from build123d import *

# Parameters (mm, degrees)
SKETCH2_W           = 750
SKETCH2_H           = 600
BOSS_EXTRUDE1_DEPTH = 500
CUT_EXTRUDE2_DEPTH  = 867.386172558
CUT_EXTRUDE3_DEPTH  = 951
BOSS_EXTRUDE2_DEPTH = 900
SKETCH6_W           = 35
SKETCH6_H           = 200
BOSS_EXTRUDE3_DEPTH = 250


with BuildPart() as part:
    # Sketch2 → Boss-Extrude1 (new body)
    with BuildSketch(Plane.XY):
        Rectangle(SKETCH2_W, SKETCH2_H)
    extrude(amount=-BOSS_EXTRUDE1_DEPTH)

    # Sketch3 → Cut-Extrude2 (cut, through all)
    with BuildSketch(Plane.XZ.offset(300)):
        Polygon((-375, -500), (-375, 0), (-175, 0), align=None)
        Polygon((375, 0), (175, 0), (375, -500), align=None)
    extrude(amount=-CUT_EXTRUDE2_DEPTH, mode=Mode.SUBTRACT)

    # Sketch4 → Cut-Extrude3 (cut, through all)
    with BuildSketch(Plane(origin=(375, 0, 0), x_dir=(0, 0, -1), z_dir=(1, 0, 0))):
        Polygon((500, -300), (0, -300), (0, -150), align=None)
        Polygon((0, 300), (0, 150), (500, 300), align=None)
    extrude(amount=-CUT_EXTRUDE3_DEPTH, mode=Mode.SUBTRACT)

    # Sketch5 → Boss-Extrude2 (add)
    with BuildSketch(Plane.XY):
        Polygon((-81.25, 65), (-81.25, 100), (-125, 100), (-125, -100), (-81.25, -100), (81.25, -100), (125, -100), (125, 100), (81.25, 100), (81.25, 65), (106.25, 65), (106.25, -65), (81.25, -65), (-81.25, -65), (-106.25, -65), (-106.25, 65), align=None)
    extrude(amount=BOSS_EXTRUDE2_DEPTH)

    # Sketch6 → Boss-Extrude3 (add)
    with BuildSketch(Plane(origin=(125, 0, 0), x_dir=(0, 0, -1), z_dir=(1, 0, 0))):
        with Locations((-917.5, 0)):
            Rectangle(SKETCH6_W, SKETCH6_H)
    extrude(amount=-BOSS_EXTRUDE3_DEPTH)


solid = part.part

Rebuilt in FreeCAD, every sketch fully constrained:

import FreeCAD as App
import Part
import Sketcher

V = App.Vector
Q = App.Units.Quantity

doc = App.newDocument("Part")
body = doc.addObject("PartDesign::Body", "Body")

# Sketch on XY plane
sketch1 = body.newObject("Sketcher::SketchObject", "Sketch")
sketch1.AttachmentSupport = (doc.getObject("XY_Plane"), [""])
sketch1.MapMode = "FlatFace"
sketch1.addGeometry(Part.LineSegment(V(-375, 300, 0), V(-375, -300, 0)), False)
sketch1.addGeometry(Part.LineSegment(V(-375, -300, 0), V(375, -300, 0)), False)
sketch1.addGeometry(Part.LineSegment(V(375, -300, 0), V(375, 300, 0)), False)
sketch1.addGeometry(Part.LineSegment(V(375, 300, 0), V(-375, 300, 0)), False)
sketch1.addConstraint(Sketcher.Constraint("Coincident", 0, 2, 1, 1))
sketch1.addConstraint(Sketcher.Constraint("Coincident", 1, 2, 2, 1))
sketch1.addConstraint(Sketcher.Constraint("Coincident", 2, 2, 3, 1))
sketch1.addConstraint(Sketcher.Constraint("Coincident", 3, 2, 0, 1))
sketch1.addConstraint(Sketcher.Constraint("Vertical", 0))
sketch1.addConstraint(Sketcher.Constraint("Horizontal", 1))
sketch1.addConstraint(Sketcher.Constraint("Vertical", 2))
sketch1.addConstraint(Sketcher.Constraint("Horizontal", 3))
sketch1.addConstraint(Sketcher.Constraint("Symmetric", 0, 2, 2, 2, -1, 1))
sketch1.addConstraint(Sketcher.Constraint("DistanceX", 1, 1, 1, 2, Q("750 mm")))
sketch1.addConstraint(Sketcher.Constraint("DistanceY", 0, 2, 0, 1, Q("600 mm")))
pad1 = body.newObject("PartDesign::Pad", "Pad")
pad1.Profile = sketch1
pad1.Length = 500
pad1.Reversed = True

# Sketch on XZ plane
sketch2 = body.newObject("Sketcher::SketchObject", "Sketch001")
sketch2.AttachmentSupport = (doc.getObject("XZ_Plane"), [""])
sketch2.MapMode = "FlatFace"
sketch2.AttachmentOffset = App.Placement(V(0, 0, 300), App.Rotation())
sketch2.addGeometry(Part.LineSegment(V(-375, 0, 0), V(-375, -500, 0)), False)
sketch2.addGeometry(Part.LineSegment(V(-375, -500, 0), V(-175, 0, 0)), False)
sketch2.addGeometry(Part.LineSegment(V(-175, 0, 0), V(-375, 0, 0)), False)
sketch2.addGeometry(Part.LineSegment(V(375, 0, 0), V(175, 0, 0)), False)
sketch2.addGeometry(Part.LineSegment(V(175, 0, 0), V(375, -500, 0)), False)
sketch2.addGeometry(Part.LineSegment(V(375, -500, 0), V(375, 0, 0)), False)
sketch2.addConstraint(Sketcher.Constraint("Coincident", 0, 2, 1, 1))
sketch2.addConstraint(Sketcher.Constraint("Coincident", 1, 2, 2, 1))
sketch2.addConstraint(Sketcher.Constraint("Coincident", 2, 2, 0, 1))
sketch2.addConstraint(Sketcher.Constraint("Coincident", 3, 2, 4, 1))
sketch2.addConstraint(Sketcher.Constraint("Coincident", 4, 2, 5, 1))
sketch2.addConstraint(Sketcher.Constraint("Coincident", 5, 2, 3, 1))
sketch2.addConstraint(Sketcher.Constraint("Vertical", 0))
sketch2.addConstraint(Sketcher.Constraint("Horizontal", 2))
sketch2.addConstraint(Sketcher.Constraint("Horizontal", 3))
sketch2.addConstraint(Sketcher.Constraint("Vertical", 5))
sketch2.addConstraint(Sketcher.Constraint("Symmetric", 1, 2, 3, 2, -1, 1))
sketch2.addConstraint(Sketcher.Constraint("Symmetric", 0, 2, 4, 2, -2))
sketch2.addConstraint(Sketcher.Constraint("PointOnObject", 1, 2, -1))
sketch2.addConstraint(Sketcher.Constraint("DistanceX", 2, 2, 2, 1, Q("200 mm")))
sketch2.addConstraint(Sketcher.Constraint("DistanceY", 0, 2, 0, 1, Q("500 mm")))
sketch2.addConstraint(Sketcher.Constraint("DistanceX", 0, 2, -1, 1, Q("375 mm")))
pocket1 = body.newObject("PartDesign::Pocket", "Pocket")
pocket1.Profile = sketch2
pocket1.Type = "ThroughAll"

# Sketch on YZ plane
sketch3 = body.newObject("Sketcher::SketchObject", "Sketch002")
sketch3.AttachmentSupport = (doc.getObject("YZ_Plane"), [""])
sketch3.MapMode = "FlatFace"
sketch3.AttachmentOffset = App.Placement(V(0, 0, 375), App.Rotation())
sketch3.addGeometry(Part.LineSegment(V(-300, 0, 0), V(-300, -500, 0)), False)
sketch3.addGeometry(Part.LineSegment(V(-300, -500, 0), V(-150, 0, 0)), False)
sketch3.addGeometry(Part.LineSegment(V(-150, 0, 0), V(-300, 0, 0)), False)
sketch3.addGeometry(Part.LineSegment(V(300, 0, 0), V(150, 0, 0)), False)
sketch3.addGeometry(Part.LineSegment(V(150, 0, 0), V(300, -500, 0)), False)
sketch3.addGeometry(Part.LineSegment(V(300, -500, 0), V(300, 0, 0)), False)
sketch3.addConstraint(Sketcher.Constraint("Coincident", 0, 2, 1, 1))
sketch3.addConstraint(Sketcher.Constraint("Coincident", 1, 2, 2, 1))
sketch3.addConstraint(Sketcher.Constraint("Coincident", 2, 2, 0, 1))
sketch3.addConstraint(Sketcher.Constraint("Coincident", 3, 2, 4, 1))
sketch3.addConstraint(Sketcher.Constraint("Coincident", 4, 2, 5, 1))
sketch3.addConstraint(Sketcher.Constraint("Coincident", 5, 2, 3, 1))
sketch3.addConstraint(Sketcher.Constraint("Vertical", 0))
sketch3.addConstraint(Sketcher.Constraint("Horizontal", 2))
sketch3.addConstraint(Sketcher.Constraint("Horizontal", 3))
sketch3.addConstraint(Sketcher.Constraint("Vertical", 5))
sketch3.addConstraint(Sketcher.Constraint("Symmetric", 1, 2, 3, 2, -1, 1))
sketch3.addConstraint(Sketcher.Constraint("Symmetric", 0, 2, 4, 2, -2))
sketch3.addConstraint(Sketcher.Constraint("PointOnObject", 1, 2, -1))
sketch3.addConstraint(Sketcher.Constraint("DistanceX", 2, 2, 2, 1, Q("150 mm")))
sketch3.addConstraint(Sketcher.Constraint("DistanceY", 0, 2, 0, 1, Q("500 mm")))
sketch3.addConstraint(Sketcher.Constraint("DistanceX", 0, 2, -1, 1, Q("300 mm")))
pocket2 = body.newObject("PartDesign::Pocket", "Pocket001")
pocket2.Profile = sketch3
pocket2.Type = "ThroughAll"

# Sketch on XY plane
sketch4 = body.newObject("Sketcher::SketchObject", "Sketch003")
sketch4.AttachmentSupport = (doc.getObject("XY_Plane"), [""])
sketch4.MapMode = "FlatFace"
sketch4.addGeometry(Part.LineSegment(V(-81, 65, 0), V(-81, 100, 0)), False)
sketch4.addGeometry(Part.LineSegment(V(-81, 100, 0), V(-125, 100, 0)), False)
sketch4.addGeometry(Part.LineSegment(V(-125, 100, 0), V(-125, -100, 0)), False)
sketch4.addGeometry(Part.LineSegment(V(-125, -100, 0), V(125, -100, 0)), False)
sketch4.addGeometry(Part.LineSegment(V(125, -100, 0), V(125, 100, 0)), False)
sketch4.addGeometry(Part.LineSegment(V(125, 100, 0), V(81, 100, 0)), False)
sketch4.addGeometry(Part.LineSegment(V(81, 100, 0), V(81, 65, 0)), False)
sketch4.addGeometry(Part.LineSegment(V(81, 65, 0), V(106, 65, 0)), False)
sketch4.addGeometry(Part.LineSegment(V(106, 65, 0), V(106, -65, 0)), False)
sketch4.addGeometry(Part.LineSegment(V(106, -65, 0), V(-106, -65, 0)), False)
sketch4.addGeometry(Part.LineSegment(V(-106, -65, 0), V(-106, 65, 0)), False)
sketch4.addGeometry(Part.LineSegment(V(-106, 65, 0), V(-81, 65, 0)), False)
sketch4.addConstraint(Sketcher.Constraint("Coincident", 0, 2, 1, 1))
sketch4.addConstraint(Sketcher.Constraint("Coincident", 1, 2, 2, 1))
sketch4.addConstraint(Sketcher.Constraint("Coincident", 2, 2, 3, 1))
sketch4.addConstraint(Sketcher.Constraint("Coincident", 3, 2, 4, 1))
sketch4.addConstraint(Sketcher.Constraint("Coincident", 4, 2, 5, 1))
sketch4.addConstraint(Sketcher.Constraint("Coincident", 5, 2, 6, 1))
sketch4.addConstraint(Sketcher.Constraint("Coincident", 6, 2, 7, 1))
sketch4.addConstraint(Sketcher.Constraint("Coincident", 7, 2, 8, 1))
sketch4.addConstraint(Sketcher.Constraint("Coincident", 8, 2, 9, 1))
sketch4.addConstraint(Sketcher.Constraint("Coincident", 9, 2, 10, 1))
sketch4.addConstraint(Sketcher.Constraint("Coincident", 10, 2, 11, 1))
sketch4.addConstraint(Sketcher.Constraint("Coincident", 11, 2, 0, 1))
sketch4.addConstraint(Sketcher.Constraint("Vertical", 0))
sketch4.addConstraint(Sketcher.Constraint("Horizontal", 1))
sketch4.addConstraint(Sketcher.Constraint("Vertical", 2))
sketch4.addConstraint(Sketcher.Constraint("Horizontal", 3))
sketch4.addConstraint(Sketcher.Constraint("Vertical", 4))
sketch4.addConstraint(Sketcher.Constraint("Horizontal", 5))
sketch4.addConstraint(Sketcher.Constraint("Vertical", 6))
sketch4.addConstraint(Sketcher.Constraint("Horizontal", 7))
sketch4.addConstraint(Sketcher.Constraint("Vertical", 8))
sketch4.addConstraint(Sketcher.Constraint("Horizontal", 9))
sketch4.addConstraint(Sketcher.Constraint("Vertical", 10))
sketch4.addConstraint(Sketcher.Constraint("Horizontal", 11))
sketch4.addConstraint(Sketcher.Constraint("Symmetric", 1, 2, 3, 2, -1, 1))
sketch4.addConstraint(Sketcher.Constraint("Symmetric", 7, 2, 9, 2, -1, 1))
sketch4.addConstraint(Sketcher.Constraint("Symmetric", 0, 2, 5, 2, -2))
sketch4.addConstraint(Sketcher.Constraint("Horizontal", 7, 2, 10, 2))
sketch4.addConstraint(Sketcher.Constraint("DistanceX", 3, 1, 3, 2, Q("250 mm")))
sketch4.addConstraint(Sketcher.Constraint("DistanceX", 7, 1, 7, 2, Q("25 mm")))
sketch4.addConstraint(Sketcher.Constraint("DistanceY", 0, 1, 0, 2, Q("35 mm")))
sketch4.addConstraint(Sketcher.Constraint("DistanceY", 2, 2, 2, 1, Q("200 mm")))
sketch4.addConstraint(Sketcher.Constraint("DistanceX", 9, 2, 9, 1, Q("212.5 mm")))
pad2 = body.newObject("PartDesign::Pad", "Pad001")
pad2.Profile = sketch4
pad2.Length = 900

# Sketch on YZ plane
sketch5 = body.newObject("Sketcher::SketchObject", "Sketch004")
sketch5.AttachmentSupport = (doc.getObject("YZ_Plane"), [""])
sketch5.MapMode = "FlatFace"
sketch5.AttachmentOffset = App.Placement(V(0, 0, 125), App.Rotation())
sketch5.addGeometry(Part.LineSegment(V(100, 935, 0), V(-100, 935, 0)), False)
sketch5.addGeometry(Part.LineSegment(V(-100, 935, 0), V(-100, 900, 0)), False)
sketch5.addGeometry(Part.LineSegment(V(-100, 900, 0), V(100, 900, 0)), False)
sketch5.addGeometry(Part.LineSegment(V(100, 900, 0), V(100, 935, 0)), False)
sketch5.addConstraint(Sketcher.Constraint("Coincident", 0, 2, 1, 1))
sketch5.addConstraint(Sketcher.Constraint("Coincident", 1, 2, 2, 1))
sketch5.addConstraint(Sketcher.Constraint("Coincident", 2, 2, 3, 1))
sketch5.addConstraint(Sketcher.Constraint("Coincident", 3, 2, 0, 1))
sketch5.addConstraint(Sketcher.Constraint("Horizontal", 0))
sketch5.addConstraint(Sketcher.Constraint("Vertical", 1))
sketch5.addConstraint(Sketcher.Constraint("Horizontal", 2))
sketch5.addConstraint(Sketcher.Constraint("Vertical", 3))
sketch5.addConstraint(Sketcher.Constraint("DistanceX", 0, 2, 0, 1, Q("200 mm")))
sketch5.addConstraint(Sketcher.Constraint("DistanceY", 1, 2, 1, 1, Q("35 mm")))
sketch5.addConstraint(Sketcher.Constraint("DistanceX", 0, 2, -1, 1, Q("100 mm")))
sketch5.addConstraint(Sketcher.Constraint("DistanceY", -1, 1, 0, 2, Q("935 mm")))
pad3 = body.newObject("PartDesign::Pad", "Pad002")
pad3.Profile = sketch5
pad3.Length = 250
pad3.Reversed = True

doc.recompute()
